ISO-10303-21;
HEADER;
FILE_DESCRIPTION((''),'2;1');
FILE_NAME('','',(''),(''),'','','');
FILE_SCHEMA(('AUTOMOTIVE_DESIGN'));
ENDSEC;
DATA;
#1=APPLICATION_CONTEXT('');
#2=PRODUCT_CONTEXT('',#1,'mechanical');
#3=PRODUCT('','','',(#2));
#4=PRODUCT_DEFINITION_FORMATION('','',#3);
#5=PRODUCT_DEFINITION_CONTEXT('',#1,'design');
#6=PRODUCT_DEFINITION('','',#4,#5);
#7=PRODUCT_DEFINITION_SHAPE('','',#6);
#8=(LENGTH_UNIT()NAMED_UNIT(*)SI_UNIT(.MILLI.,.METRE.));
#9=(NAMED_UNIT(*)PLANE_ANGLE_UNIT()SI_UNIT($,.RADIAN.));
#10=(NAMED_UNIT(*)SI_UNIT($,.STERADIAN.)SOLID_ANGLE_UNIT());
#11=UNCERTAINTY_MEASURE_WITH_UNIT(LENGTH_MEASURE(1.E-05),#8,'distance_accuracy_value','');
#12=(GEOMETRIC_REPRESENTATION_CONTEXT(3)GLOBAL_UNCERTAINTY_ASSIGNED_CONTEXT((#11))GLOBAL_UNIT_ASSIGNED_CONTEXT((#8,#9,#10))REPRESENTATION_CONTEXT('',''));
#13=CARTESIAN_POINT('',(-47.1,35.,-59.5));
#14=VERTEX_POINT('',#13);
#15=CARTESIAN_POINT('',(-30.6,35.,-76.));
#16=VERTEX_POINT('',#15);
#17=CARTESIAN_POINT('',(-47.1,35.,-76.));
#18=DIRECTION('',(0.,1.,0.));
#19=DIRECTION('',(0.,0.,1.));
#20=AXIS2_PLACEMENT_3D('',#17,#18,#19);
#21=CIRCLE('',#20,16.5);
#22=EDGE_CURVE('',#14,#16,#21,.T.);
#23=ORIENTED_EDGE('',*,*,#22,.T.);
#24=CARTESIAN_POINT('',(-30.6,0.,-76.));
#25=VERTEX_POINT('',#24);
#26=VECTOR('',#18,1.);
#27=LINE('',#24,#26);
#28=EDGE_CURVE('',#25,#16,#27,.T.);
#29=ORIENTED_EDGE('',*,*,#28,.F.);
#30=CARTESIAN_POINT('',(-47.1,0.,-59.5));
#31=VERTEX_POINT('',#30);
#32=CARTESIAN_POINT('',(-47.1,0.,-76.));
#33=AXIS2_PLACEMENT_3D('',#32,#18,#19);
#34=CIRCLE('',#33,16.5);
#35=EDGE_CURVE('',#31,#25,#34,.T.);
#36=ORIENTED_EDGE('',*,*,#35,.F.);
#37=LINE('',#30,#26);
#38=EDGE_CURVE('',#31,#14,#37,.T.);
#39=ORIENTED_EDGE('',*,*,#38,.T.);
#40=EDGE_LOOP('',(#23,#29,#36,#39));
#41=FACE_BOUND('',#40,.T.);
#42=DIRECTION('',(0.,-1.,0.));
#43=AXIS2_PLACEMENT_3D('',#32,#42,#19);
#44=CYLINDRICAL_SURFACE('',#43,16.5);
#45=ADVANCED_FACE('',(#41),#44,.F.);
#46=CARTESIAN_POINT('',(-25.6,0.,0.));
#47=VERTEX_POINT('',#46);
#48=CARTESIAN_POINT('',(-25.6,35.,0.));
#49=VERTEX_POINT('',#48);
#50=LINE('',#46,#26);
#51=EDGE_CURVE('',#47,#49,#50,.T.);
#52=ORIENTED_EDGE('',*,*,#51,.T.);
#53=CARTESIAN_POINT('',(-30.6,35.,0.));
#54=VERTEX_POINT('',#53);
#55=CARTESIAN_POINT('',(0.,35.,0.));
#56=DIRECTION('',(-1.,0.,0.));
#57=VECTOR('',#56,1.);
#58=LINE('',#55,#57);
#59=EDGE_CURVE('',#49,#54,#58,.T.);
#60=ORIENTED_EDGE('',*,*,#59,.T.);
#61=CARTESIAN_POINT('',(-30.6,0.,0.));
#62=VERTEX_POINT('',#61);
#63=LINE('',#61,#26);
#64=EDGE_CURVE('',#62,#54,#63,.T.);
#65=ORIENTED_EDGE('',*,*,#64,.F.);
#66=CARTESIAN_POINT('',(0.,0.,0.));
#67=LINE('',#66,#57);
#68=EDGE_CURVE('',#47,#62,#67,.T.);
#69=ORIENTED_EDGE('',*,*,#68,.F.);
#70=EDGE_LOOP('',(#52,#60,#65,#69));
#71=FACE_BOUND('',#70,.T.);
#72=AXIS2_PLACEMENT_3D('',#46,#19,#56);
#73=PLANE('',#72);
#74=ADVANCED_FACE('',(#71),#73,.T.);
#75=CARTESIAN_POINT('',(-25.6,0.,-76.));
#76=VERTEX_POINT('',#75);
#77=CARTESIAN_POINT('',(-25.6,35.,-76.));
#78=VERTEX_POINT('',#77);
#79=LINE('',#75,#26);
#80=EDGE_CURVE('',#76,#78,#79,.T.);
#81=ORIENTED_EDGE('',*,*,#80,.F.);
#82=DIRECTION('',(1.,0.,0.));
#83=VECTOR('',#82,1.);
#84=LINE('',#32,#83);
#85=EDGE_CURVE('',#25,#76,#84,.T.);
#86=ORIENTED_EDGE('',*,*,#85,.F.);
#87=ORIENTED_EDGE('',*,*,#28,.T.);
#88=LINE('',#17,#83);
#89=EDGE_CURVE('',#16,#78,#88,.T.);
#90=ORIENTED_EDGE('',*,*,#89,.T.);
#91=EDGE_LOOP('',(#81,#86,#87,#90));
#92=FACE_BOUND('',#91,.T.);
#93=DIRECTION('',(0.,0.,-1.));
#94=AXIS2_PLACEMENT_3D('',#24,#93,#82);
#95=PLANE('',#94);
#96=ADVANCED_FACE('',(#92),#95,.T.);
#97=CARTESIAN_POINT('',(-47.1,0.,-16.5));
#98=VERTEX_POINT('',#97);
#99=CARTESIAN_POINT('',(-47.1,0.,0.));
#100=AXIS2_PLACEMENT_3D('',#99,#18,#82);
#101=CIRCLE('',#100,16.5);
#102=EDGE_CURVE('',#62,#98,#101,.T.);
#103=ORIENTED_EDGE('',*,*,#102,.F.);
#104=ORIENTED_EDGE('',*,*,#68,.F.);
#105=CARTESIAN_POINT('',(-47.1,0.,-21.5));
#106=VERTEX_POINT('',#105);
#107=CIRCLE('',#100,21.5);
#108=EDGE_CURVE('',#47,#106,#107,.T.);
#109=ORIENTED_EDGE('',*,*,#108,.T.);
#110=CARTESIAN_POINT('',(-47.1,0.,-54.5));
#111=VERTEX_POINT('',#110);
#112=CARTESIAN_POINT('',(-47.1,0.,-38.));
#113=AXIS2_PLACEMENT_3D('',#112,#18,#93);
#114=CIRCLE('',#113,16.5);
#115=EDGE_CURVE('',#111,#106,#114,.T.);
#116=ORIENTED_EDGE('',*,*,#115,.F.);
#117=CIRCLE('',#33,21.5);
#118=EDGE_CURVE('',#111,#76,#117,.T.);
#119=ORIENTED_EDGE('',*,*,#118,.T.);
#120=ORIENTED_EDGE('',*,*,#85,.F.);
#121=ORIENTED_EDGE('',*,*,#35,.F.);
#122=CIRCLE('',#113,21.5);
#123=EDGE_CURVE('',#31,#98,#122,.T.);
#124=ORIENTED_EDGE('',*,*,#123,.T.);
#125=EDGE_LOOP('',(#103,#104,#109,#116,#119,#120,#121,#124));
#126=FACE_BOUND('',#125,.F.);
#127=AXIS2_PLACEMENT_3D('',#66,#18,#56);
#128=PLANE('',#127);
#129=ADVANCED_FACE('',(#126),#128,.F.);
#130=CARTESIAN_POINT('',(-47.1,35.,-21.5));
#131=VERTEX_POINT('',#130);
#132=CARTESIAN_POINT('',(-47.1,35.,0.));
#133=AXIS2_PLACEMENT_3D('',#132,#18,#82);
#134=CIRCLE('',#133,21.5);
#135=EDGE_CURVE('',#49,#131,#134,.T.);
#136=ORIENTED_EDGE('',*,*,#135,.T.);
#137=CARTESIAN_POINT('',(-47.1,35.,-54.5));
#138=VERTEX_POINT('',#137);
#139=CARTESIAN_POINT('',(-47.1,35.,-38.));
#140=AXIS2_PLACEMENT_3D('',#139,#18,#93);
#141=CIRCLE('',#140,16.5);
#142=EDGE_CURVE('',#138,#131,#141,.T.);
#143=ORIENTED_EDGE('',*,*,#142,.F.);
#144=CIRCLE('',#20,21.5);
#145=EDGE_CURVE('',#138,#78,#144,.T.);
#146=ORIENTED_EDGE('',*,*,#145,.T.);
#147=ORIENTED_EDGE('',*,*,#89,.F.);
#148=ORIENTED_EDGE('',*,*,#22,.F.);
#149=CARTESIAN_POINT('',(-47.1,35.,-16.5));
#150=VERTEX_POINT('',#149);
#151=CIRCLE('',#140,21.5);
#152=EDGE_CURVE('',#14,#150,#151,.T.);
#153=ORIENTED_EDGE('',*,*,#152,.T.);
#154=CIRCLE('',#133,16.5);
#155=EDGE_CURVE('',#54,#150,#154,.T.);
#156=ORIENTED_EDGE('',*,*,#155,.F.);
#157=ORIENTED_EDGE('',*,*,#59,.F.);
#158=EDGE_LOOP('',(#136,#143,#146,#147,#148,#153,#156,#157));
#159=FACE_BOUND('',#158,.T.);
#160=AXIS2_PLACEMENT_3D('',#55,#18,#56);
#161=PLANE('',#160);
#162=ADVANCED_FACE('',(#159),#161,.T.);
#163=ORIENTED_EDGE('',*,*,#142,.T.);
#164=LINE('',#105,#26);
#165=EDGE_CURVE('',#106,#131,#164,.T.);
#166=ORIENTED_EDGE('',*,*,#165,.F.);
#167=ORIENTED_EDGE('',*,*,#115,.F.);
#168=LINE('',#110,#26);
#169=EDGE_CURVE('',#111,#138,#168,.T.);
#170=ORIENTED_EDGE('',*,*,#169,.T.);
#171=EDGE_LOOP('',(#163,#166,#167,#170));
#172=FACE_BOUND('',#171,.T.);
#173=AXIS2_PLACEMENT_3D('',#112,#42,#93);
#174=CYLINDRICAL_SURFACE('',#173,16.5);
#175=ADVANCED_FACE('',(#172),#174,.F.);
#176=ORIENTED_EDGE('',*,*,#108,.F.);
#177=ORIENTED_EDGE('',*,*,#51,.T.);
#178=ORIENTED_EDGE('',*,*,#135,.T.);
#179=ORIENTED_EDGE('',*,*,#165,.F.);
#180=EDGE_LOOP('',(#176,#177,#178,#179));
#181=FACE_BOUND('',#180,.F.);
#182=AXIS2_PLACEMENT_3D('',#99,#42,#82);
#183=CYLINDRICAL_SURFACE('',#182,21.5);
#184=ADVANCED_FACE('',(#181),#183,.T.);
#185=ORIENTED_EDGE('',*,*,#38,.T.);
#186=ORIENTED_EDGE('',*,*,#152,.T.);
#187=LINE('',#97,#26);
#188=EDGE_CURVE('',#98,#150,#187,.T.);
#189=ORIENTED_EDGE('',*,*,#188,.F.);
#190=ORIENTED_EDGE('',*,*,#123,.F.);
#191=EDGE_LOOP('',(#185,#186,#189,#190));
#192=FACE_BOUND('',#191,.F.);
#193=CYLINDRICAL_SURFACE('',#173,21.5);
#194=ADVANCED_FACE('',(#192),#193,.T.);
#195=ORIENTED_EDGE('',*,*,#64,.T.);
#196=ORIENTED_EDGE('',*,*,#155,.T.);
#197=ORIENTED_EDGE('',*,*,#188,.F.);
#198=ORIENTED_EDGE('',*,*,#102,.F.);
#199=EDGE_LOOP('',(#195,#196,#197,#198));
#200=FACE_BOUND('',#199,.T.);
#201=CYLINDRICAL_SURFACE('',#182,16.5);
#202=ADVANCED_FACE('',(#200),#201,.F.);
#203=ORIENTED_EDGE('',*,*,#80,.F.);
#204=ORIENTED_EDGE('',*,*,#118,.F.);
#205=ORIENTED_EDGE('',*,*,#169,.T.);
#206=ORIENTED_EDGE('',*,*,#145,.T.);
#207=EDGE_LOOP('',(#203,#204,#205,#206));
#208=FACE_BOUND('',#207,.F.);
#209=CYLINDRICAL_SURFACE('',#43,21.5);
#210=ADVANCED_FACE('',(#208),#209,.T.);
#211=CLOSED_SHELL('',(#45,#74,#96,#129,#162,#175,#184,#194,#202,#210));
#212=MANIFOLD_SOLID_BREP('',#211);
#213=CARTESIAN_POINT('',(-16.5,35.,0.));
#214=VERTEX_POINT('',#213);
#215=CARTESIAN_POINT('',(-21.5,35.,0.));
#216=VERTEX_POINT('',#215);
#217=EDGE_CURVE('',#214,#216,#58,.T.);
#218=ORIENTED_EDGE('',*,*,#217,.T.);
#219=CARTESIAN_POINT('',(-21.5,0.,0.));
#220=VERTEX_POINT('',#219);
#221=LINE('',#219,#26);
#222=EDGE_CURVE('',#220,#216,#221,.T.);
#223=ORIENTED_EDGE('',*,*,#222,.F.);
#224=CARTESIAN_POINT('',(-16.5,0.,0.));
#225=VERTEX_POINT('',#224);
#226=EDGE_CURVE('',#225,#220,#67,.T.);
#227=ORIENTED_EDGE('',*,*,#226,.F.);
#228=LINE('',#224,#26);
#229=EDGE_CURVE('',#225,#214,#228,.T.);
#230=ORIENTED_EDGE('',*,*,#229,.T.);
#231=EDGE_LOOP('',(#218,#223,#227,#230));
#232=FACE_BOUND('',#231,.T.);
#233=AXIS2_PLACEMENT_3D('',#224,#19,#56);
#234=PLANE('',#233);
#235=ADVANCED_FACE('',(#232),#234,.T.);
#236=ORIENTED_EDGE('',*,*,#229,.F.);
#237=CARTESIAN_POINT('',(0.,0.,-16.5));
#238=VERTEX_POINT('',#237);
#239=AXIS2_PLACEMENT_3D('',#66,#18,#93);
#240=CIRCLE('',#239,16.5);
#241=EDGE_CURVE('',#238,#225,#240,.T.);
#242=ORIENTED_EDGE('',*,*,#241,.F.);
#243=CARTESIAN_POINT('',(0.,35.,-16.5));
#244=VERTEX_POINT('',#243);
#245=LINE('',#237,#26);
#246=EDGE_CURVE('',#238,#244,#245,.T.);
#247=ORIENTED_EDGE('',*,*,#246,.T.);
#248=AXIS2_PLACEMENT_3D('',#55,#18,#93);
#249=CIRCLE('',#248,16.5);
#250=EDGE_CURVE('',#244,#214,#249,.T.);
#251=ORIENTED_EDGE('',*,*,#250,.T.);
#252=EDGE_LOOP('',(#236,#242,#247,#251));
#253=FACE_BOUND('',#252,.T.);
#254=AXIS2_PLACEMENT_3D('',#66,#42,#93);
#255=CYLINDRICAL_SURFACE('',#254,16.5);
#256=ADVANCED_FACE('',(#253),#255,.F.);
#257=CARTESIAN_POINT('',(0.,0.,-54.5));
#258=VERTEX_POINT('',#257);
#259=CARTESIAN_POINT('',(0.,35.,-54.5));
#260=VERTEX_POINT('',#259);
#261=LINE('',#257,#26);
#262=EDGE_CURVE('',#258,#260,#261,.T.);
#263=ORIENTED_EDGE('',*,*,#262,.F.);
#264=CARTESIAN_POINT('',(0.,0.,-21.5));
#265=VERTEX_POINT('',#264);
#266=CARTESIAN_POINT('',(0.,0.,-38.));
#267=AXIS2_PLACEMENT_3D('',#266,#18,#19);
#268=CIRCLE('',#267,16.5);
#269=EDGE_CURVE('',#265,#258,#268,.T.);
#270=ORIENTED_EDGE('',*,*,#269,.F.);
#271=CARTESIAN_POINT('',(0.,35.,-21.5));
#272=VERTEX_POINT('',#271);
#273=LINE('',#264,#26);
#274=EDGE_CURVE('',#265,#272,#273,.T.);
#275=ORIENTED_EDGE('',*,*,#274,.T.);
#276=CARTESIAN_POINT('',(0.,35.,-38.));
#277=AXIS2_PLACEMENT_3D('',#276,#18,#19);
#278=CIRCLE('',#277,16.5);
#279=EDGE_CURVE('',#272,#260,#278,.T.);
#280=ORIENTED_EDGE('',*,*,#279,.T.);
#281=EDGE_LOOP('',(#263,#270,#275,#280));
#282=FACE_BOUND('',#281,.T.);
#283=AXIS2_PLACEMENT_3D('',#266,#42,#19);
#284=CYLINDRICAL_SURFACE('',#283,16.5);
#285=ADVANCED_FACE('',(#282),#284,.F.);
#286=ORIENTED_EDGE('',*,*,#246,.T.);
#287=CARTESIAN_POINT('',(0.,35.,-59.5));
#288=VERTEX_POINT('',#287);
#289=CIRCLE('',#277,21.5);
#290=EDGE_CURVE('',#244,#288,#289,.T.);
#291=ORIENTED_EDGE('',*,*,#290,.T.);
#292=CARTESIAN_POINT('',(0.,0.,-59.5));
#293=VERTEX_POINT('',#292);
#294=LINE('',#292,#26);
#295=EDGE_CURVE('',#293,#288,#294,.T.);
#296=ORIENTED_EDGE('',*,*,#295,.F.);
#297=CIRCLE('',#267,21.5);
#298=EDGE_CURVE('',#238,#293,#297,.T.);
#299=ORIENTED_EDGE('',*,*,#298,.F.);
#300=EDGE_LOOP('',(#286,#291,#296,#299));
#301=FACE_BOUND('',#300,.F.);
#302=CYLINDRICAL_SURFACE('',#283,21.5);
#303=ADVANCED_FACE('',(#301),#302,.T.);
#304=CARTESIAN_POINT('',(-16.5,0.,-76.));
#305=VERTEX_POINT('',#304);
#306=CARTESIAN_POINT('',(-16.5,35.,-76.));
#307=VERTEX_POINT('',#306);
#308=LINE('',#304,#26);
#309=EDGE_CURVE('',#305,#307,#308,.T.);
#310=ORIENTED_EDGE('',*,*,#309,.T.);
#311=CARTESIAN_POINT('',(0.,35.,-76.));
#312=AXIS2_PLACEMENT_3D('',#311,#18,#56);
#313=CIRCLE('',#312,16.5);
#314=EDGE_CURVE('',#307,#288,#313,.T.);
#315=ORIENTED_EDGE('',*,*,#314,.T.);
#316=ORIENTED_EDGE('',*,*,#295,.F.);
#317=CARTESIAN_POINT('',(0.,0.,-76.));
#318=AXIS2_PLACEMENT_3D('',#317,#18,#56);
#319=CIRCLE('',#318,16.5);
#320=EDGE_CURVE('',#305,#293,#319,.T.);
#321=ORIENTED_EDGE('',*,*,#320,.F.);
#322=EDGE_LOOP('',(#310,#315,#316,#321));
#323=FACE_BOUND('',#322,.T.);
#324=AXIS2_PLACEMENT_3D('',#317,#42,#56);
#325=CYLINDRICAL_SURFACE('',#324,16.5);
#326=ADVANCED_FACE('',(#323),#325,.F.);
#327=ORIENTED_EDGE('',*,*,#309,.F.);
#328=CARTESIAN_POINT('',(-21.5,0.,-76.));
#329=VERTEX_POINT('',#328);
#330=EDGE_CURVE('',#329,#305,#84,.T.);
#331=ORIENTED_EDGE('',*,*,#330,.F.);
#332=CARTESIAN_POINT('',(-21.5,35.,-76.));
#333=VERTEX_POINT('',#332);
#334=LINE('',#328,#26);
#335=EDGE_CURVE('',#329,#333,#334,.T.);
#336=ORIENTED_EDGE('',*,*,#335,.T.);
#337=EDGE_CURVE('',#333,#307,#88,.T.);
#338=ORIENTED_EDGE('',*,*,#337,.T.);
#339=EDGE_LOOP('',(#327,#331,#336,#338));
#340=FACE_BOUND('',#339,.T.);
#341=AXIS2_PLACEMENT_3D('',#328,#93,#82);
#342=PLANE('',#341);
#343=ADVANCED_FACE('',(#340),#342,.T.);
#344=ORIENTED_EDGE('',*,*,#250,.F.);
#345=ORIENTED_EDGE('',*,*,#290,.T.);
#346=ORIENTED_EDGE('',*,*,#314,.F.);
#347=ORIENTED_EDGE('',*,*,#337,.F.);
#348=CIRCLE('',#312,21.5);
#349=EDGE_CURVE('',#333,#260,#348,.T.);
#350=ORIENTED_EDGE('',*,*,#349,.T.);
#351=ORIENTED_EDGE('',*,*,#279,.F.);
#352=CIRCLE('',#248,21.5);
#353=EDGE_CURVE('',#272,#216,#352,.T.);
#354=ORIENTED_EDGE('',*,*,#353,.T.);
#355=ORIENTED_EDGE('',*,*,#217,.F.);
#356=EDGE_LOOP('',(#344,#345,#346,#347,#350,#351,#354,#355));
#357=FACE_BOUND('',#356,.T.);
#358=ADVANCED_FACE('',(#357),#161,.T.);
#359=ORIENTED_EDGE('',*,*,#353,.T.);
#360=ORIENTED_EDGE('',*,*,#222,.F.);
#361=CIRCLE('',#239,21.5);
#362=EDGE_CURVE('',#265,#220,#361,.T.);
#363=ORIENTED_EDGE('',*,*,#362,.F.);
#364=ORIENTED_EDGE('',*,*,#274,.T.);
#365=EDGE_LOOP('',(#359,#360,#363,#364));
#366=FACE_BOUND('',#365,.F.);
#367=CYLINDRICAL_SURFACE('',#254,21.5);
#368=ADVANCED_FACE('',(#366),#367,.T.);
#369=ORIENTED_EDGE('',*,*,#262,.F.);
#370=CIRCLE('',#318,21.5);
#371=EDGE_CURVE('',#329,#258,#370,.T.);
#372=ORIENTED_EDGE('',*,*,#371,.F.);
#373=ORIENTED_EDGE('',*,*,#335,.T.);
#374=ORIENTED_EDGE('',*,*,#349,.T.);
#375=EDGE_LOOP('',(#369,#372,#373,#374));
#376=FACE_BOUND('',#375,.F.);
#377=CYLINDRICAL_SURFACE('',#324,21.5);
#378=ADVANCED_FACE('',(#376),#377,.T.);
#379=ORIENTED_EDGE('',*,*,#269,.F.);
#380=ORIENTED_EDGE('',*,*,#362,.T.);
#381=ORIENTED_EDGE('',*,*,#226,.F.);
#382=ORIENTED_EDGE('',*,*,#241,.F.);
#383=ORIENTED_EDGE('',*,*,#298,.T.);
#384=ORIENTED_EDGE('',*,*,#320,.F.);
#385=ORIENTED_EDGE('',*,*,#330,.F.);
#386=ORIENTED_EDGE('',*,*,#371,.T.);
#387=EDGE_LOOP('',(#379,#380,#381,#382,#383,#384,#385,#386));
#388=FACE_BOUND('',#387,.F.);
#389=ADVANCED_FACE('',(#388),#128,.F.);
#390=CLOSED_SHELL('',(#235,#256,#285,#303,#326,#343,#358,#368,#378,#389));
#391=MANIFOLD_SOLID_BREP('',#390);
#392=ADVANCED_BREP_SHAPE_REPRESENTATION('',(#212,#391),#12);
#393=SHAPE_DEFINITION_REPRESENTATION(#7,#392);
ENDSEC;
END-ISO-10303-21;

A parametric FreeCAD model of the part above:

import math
import FreeCAD as App
import Part
import Sketcher
from FreeCAD import Vector
Q = App.Units.Quantity

doc = App.newDocument("Part")
body = doc.addObject("PartDesign::Body", "Body")
body.AllowCompound = True

# Sketch on XZ plane
sketch1 = body.newObject("Sketcher::SketchObject", "Sketch")
sketch1.AttachmentSupport = (doc.getObject("XZ_Plane"), [""])
sketch1.MapMode = "FlatFace"
sketch1.addGeometry(Part.LineSegment(Vector(-22, 0, 0), Vector(-16, 0, 0)), False)
sketch1.addGeometry(Part.ArcOfCircle(Part.Circle(Vector(0, 0, 0), Vector(0, 0, 1), 16), math.radians(180), math.radians(270)), False)
sketch1.addGeometry(Part.ArcOfCircle(Part.Circle(Vector(0, -38, 0), Vector(0, 0, 1), 22), math.radians(-90), math.radians(90)), False)
sketch1.addGeometry(Part.ArcOfCircle(Part.Circle(Vector(0, -76, 0), Vector(0, 0, 1), 16), math.radians(90), math.radians(180)), False)
sketch1.addGeometry(Part.LineSegment(Vector(-16, -76, 0), Vector(-22, -76, 0)), False)
sketch1.addGeometry(Part.ArcOfCircle(Part.Circle(Vector(0, -76, 0), Vector(0, 0, 1), 22), math.radians(90), math.radians(180)), False)
sketch1.addGeometry(Part.ArcOfCircle(Part.Circle(Vector(0, -38, 0), Vector(0, 0, 1), 16), math.radians(-90), math.radians(90)), False)
sketch1.addGeometry(Part.ArcOfCircle(Part.Circle(Vector(0, 0, 0), Vector(0, 0, 1), 22), math.radians(180), math.radians(270)), False)
sketch1.addGeometry(Part.LineSegment(Vector(-31, 0, 0), Vector(-26, 0, 0)), False)
sketch1.addGeometry(Part.ArcOfCircle(Part.Circle(Vector(-47, 0, 0), Vector(0, 0, 1), 22), math.radians(-90), math.radians(0)), False)
sketch1.addGeometry(Part.ArcOfCircle(Part.Circle(Vector(-47, -38, 0), Vector(0, 0, 1), 16), math.radians(90), math.radians(270)), False)
sketch1.addGeometry(Part.ArcOfCircle(Part.Circle(Vector(-47, -76, 0), Vector(0, 0, 1), 22), math.radians(0), math.radians(90)), False)
sketch1.addGeometry(Part.LineSegment(Vector(-26, -76, 0), Vector(-31, -76, 0)), False)
sketch1.addGeometry(Part.ArcOfCircle(Part.Circle(Vector(-47, -76, 0), Vector(0, 0, 1), 16), math.radians(0), math.radians(90)), False)
sketch1.addGeometry(Part.ArcOfCircle(Part.Circle(Vector(-47, -38, 0), Vector(0, 0, 1), 22), math.radians(90), math.radians(270)), False)
sketch1.addGeometry(Part.ArcOfCircle(Part.Circle(Vector(-47, 0, 0), Vector(0, 0, 1), 16), math.radians(-90), math.radians(0)), False)
sketch1.addConstraint(Sketcher.Constraint("Coincident", 0, 2, 1, 1))
sketch1.addConstraint(Sketcher.Constraint("Tangent", 1, 2, 2, 2))
sketch1.addConstraint(Sketcher.Constraint("Tangent", 2, 1, 3, 1))
sketch1.addConstraint(Sketcher.Constraint("Coincident", 3, 2, 4, 1))
sketch1.addConstraint(Sketcher.Constraint("Coincident", 4, 2, 5, 2))
sketch1.addConstraint(Sketcher.Constraint("Tangent", 5, 1, 6, 1))
sketch1.addConstraint(Sketcher.Constraint("Tangent", 6, 2, 7, 2))
sketch1.addConstraint(Sketcher.Constraint("Coincident", 7, 1, 0, 1))
sketch1.addConstraint(Sketcher.Constraint("Coincident", 8, 2, 9, 2))
sketch1.addConstraint(Sketcher.Constraint("Tangent", 9, 1, 10, 1))
sketch1.addConstraint(Sketcher.Constraint("Tangent", 10, 2, 11, 2))
sketch1.addConstraint(Sketcher.Constraint("Coincident", 11, 1, 12, 1))
sketch1.addConstraint(Sketcher.Constraint("Coincident", 12, 2, 13, 1))
sketch1.addConstraint(Sketcher.Constraint("Tangent", 13, 2, 14, 2))
sketch1.addConstraint(Sketcher.Constraint("Tangent", 14, 1, 15, 1))
sketch1.addConstraint(Sketcher.Constraint("Coincident", 15, 2, 8, 1))
sketch1.addConstraint(Sketcher.Constraint("Horizontal", 0))
sketch1.addConstraint(Sketcher.Constraint("Horizontal", 4))
sketch1.addConstraint(Sketcher.Constraint("Horizontal", 8))
sketch1.addConstraint(Sketcher.Constraint("Horizontal", 12))
sketch1.addConstraint(Sketcher.Constraint("Coincident", 1, 3, -1, 1))
sketch1.addConstraint(Sketcher.Constraint("Coincident", 7, 3, -1, 1))
sketch1.addConstraint(Sketcher.Constraint("Coincident", 5, 3, 3, 3))
sketch1.addConstraint(Sketcher.Constraint("Coincident", 6, 3, 2, 3))
sketch1.addConstraint(Sketcher.Constraint("Coincident", 13, 3, 11, 3))
sketch1.addConstraint(Sketcher.Constraint("Coincident", 14, 3, 10, 3))
sketch1.addConstraint(Sketcher.Constraint("Coincident", 15, 3, 9, 3))
sketch1.addConstraint(Sketcher.Constraint("Equal", 1, 3))
sketch1.addConstraint(Sketcher.Constraint("Equal", 2, 5))
sketch1.addConstraint(Sketcher.Constraint("Equal", 7, 9))
sketch1.addConstraint(Sketcher.Constraint("Equal", 6, 10))
sketch1.addConstraint(Sketcher.Constraint("Equal", 9, 11))
sketch1.addConstraint(Sketcher.Constraint("Equal", 10, 13))
sketch1.addConstraint(Sketcher.Constraint("PointOnObject", 2, 3, -2))
sketch1.addConstraint(Sketcher.Constraint("PointOnObject", 3, 3, -2))
sketch1.addConstraint(Sketcher.Constraint("PointOnObject", 9, 3, -1))
sketch1.addConstraint(Sketcher.Constraint("PointOnObject", 0, 2, -1))
sketch1.addConstraint(Sketcher.Constraint("PointOnObject", 8, 2, -1))
sketch1.addConstraint(Sketcher.Constraint("Horizontal", 13, 3, 3, 2))
sketch1.addConstraint(Sketcher.Constraint("Horizontal", 4, 2, 11, 1))
sketch1.addConstraint(Sketcher.Constraint("Vertical", 9, 3, 10, 3))
sketch1.addConstraint(Sketcher.Constraint("Vertical", 10, 3, 11, 3))
sketch1.addConstraint(Sketcher.Constraint("Radius", 1, Q("16.5 mm")))
sketch1.addConstraint(Sketcher.Constraint("Radius", 2, Q("21.5 mm")))
sketch1.addConstraint(Sketcher.Constraint("DistanceX", 9, 3, -1, 1, Q("47.1 mm")))
pad1 = body.newObject("PartDesign::Pad", "Pad")
pad1.Profile = sketch1
pad1.Length = 35
pad1.Reversed = True

doc.recompute()
